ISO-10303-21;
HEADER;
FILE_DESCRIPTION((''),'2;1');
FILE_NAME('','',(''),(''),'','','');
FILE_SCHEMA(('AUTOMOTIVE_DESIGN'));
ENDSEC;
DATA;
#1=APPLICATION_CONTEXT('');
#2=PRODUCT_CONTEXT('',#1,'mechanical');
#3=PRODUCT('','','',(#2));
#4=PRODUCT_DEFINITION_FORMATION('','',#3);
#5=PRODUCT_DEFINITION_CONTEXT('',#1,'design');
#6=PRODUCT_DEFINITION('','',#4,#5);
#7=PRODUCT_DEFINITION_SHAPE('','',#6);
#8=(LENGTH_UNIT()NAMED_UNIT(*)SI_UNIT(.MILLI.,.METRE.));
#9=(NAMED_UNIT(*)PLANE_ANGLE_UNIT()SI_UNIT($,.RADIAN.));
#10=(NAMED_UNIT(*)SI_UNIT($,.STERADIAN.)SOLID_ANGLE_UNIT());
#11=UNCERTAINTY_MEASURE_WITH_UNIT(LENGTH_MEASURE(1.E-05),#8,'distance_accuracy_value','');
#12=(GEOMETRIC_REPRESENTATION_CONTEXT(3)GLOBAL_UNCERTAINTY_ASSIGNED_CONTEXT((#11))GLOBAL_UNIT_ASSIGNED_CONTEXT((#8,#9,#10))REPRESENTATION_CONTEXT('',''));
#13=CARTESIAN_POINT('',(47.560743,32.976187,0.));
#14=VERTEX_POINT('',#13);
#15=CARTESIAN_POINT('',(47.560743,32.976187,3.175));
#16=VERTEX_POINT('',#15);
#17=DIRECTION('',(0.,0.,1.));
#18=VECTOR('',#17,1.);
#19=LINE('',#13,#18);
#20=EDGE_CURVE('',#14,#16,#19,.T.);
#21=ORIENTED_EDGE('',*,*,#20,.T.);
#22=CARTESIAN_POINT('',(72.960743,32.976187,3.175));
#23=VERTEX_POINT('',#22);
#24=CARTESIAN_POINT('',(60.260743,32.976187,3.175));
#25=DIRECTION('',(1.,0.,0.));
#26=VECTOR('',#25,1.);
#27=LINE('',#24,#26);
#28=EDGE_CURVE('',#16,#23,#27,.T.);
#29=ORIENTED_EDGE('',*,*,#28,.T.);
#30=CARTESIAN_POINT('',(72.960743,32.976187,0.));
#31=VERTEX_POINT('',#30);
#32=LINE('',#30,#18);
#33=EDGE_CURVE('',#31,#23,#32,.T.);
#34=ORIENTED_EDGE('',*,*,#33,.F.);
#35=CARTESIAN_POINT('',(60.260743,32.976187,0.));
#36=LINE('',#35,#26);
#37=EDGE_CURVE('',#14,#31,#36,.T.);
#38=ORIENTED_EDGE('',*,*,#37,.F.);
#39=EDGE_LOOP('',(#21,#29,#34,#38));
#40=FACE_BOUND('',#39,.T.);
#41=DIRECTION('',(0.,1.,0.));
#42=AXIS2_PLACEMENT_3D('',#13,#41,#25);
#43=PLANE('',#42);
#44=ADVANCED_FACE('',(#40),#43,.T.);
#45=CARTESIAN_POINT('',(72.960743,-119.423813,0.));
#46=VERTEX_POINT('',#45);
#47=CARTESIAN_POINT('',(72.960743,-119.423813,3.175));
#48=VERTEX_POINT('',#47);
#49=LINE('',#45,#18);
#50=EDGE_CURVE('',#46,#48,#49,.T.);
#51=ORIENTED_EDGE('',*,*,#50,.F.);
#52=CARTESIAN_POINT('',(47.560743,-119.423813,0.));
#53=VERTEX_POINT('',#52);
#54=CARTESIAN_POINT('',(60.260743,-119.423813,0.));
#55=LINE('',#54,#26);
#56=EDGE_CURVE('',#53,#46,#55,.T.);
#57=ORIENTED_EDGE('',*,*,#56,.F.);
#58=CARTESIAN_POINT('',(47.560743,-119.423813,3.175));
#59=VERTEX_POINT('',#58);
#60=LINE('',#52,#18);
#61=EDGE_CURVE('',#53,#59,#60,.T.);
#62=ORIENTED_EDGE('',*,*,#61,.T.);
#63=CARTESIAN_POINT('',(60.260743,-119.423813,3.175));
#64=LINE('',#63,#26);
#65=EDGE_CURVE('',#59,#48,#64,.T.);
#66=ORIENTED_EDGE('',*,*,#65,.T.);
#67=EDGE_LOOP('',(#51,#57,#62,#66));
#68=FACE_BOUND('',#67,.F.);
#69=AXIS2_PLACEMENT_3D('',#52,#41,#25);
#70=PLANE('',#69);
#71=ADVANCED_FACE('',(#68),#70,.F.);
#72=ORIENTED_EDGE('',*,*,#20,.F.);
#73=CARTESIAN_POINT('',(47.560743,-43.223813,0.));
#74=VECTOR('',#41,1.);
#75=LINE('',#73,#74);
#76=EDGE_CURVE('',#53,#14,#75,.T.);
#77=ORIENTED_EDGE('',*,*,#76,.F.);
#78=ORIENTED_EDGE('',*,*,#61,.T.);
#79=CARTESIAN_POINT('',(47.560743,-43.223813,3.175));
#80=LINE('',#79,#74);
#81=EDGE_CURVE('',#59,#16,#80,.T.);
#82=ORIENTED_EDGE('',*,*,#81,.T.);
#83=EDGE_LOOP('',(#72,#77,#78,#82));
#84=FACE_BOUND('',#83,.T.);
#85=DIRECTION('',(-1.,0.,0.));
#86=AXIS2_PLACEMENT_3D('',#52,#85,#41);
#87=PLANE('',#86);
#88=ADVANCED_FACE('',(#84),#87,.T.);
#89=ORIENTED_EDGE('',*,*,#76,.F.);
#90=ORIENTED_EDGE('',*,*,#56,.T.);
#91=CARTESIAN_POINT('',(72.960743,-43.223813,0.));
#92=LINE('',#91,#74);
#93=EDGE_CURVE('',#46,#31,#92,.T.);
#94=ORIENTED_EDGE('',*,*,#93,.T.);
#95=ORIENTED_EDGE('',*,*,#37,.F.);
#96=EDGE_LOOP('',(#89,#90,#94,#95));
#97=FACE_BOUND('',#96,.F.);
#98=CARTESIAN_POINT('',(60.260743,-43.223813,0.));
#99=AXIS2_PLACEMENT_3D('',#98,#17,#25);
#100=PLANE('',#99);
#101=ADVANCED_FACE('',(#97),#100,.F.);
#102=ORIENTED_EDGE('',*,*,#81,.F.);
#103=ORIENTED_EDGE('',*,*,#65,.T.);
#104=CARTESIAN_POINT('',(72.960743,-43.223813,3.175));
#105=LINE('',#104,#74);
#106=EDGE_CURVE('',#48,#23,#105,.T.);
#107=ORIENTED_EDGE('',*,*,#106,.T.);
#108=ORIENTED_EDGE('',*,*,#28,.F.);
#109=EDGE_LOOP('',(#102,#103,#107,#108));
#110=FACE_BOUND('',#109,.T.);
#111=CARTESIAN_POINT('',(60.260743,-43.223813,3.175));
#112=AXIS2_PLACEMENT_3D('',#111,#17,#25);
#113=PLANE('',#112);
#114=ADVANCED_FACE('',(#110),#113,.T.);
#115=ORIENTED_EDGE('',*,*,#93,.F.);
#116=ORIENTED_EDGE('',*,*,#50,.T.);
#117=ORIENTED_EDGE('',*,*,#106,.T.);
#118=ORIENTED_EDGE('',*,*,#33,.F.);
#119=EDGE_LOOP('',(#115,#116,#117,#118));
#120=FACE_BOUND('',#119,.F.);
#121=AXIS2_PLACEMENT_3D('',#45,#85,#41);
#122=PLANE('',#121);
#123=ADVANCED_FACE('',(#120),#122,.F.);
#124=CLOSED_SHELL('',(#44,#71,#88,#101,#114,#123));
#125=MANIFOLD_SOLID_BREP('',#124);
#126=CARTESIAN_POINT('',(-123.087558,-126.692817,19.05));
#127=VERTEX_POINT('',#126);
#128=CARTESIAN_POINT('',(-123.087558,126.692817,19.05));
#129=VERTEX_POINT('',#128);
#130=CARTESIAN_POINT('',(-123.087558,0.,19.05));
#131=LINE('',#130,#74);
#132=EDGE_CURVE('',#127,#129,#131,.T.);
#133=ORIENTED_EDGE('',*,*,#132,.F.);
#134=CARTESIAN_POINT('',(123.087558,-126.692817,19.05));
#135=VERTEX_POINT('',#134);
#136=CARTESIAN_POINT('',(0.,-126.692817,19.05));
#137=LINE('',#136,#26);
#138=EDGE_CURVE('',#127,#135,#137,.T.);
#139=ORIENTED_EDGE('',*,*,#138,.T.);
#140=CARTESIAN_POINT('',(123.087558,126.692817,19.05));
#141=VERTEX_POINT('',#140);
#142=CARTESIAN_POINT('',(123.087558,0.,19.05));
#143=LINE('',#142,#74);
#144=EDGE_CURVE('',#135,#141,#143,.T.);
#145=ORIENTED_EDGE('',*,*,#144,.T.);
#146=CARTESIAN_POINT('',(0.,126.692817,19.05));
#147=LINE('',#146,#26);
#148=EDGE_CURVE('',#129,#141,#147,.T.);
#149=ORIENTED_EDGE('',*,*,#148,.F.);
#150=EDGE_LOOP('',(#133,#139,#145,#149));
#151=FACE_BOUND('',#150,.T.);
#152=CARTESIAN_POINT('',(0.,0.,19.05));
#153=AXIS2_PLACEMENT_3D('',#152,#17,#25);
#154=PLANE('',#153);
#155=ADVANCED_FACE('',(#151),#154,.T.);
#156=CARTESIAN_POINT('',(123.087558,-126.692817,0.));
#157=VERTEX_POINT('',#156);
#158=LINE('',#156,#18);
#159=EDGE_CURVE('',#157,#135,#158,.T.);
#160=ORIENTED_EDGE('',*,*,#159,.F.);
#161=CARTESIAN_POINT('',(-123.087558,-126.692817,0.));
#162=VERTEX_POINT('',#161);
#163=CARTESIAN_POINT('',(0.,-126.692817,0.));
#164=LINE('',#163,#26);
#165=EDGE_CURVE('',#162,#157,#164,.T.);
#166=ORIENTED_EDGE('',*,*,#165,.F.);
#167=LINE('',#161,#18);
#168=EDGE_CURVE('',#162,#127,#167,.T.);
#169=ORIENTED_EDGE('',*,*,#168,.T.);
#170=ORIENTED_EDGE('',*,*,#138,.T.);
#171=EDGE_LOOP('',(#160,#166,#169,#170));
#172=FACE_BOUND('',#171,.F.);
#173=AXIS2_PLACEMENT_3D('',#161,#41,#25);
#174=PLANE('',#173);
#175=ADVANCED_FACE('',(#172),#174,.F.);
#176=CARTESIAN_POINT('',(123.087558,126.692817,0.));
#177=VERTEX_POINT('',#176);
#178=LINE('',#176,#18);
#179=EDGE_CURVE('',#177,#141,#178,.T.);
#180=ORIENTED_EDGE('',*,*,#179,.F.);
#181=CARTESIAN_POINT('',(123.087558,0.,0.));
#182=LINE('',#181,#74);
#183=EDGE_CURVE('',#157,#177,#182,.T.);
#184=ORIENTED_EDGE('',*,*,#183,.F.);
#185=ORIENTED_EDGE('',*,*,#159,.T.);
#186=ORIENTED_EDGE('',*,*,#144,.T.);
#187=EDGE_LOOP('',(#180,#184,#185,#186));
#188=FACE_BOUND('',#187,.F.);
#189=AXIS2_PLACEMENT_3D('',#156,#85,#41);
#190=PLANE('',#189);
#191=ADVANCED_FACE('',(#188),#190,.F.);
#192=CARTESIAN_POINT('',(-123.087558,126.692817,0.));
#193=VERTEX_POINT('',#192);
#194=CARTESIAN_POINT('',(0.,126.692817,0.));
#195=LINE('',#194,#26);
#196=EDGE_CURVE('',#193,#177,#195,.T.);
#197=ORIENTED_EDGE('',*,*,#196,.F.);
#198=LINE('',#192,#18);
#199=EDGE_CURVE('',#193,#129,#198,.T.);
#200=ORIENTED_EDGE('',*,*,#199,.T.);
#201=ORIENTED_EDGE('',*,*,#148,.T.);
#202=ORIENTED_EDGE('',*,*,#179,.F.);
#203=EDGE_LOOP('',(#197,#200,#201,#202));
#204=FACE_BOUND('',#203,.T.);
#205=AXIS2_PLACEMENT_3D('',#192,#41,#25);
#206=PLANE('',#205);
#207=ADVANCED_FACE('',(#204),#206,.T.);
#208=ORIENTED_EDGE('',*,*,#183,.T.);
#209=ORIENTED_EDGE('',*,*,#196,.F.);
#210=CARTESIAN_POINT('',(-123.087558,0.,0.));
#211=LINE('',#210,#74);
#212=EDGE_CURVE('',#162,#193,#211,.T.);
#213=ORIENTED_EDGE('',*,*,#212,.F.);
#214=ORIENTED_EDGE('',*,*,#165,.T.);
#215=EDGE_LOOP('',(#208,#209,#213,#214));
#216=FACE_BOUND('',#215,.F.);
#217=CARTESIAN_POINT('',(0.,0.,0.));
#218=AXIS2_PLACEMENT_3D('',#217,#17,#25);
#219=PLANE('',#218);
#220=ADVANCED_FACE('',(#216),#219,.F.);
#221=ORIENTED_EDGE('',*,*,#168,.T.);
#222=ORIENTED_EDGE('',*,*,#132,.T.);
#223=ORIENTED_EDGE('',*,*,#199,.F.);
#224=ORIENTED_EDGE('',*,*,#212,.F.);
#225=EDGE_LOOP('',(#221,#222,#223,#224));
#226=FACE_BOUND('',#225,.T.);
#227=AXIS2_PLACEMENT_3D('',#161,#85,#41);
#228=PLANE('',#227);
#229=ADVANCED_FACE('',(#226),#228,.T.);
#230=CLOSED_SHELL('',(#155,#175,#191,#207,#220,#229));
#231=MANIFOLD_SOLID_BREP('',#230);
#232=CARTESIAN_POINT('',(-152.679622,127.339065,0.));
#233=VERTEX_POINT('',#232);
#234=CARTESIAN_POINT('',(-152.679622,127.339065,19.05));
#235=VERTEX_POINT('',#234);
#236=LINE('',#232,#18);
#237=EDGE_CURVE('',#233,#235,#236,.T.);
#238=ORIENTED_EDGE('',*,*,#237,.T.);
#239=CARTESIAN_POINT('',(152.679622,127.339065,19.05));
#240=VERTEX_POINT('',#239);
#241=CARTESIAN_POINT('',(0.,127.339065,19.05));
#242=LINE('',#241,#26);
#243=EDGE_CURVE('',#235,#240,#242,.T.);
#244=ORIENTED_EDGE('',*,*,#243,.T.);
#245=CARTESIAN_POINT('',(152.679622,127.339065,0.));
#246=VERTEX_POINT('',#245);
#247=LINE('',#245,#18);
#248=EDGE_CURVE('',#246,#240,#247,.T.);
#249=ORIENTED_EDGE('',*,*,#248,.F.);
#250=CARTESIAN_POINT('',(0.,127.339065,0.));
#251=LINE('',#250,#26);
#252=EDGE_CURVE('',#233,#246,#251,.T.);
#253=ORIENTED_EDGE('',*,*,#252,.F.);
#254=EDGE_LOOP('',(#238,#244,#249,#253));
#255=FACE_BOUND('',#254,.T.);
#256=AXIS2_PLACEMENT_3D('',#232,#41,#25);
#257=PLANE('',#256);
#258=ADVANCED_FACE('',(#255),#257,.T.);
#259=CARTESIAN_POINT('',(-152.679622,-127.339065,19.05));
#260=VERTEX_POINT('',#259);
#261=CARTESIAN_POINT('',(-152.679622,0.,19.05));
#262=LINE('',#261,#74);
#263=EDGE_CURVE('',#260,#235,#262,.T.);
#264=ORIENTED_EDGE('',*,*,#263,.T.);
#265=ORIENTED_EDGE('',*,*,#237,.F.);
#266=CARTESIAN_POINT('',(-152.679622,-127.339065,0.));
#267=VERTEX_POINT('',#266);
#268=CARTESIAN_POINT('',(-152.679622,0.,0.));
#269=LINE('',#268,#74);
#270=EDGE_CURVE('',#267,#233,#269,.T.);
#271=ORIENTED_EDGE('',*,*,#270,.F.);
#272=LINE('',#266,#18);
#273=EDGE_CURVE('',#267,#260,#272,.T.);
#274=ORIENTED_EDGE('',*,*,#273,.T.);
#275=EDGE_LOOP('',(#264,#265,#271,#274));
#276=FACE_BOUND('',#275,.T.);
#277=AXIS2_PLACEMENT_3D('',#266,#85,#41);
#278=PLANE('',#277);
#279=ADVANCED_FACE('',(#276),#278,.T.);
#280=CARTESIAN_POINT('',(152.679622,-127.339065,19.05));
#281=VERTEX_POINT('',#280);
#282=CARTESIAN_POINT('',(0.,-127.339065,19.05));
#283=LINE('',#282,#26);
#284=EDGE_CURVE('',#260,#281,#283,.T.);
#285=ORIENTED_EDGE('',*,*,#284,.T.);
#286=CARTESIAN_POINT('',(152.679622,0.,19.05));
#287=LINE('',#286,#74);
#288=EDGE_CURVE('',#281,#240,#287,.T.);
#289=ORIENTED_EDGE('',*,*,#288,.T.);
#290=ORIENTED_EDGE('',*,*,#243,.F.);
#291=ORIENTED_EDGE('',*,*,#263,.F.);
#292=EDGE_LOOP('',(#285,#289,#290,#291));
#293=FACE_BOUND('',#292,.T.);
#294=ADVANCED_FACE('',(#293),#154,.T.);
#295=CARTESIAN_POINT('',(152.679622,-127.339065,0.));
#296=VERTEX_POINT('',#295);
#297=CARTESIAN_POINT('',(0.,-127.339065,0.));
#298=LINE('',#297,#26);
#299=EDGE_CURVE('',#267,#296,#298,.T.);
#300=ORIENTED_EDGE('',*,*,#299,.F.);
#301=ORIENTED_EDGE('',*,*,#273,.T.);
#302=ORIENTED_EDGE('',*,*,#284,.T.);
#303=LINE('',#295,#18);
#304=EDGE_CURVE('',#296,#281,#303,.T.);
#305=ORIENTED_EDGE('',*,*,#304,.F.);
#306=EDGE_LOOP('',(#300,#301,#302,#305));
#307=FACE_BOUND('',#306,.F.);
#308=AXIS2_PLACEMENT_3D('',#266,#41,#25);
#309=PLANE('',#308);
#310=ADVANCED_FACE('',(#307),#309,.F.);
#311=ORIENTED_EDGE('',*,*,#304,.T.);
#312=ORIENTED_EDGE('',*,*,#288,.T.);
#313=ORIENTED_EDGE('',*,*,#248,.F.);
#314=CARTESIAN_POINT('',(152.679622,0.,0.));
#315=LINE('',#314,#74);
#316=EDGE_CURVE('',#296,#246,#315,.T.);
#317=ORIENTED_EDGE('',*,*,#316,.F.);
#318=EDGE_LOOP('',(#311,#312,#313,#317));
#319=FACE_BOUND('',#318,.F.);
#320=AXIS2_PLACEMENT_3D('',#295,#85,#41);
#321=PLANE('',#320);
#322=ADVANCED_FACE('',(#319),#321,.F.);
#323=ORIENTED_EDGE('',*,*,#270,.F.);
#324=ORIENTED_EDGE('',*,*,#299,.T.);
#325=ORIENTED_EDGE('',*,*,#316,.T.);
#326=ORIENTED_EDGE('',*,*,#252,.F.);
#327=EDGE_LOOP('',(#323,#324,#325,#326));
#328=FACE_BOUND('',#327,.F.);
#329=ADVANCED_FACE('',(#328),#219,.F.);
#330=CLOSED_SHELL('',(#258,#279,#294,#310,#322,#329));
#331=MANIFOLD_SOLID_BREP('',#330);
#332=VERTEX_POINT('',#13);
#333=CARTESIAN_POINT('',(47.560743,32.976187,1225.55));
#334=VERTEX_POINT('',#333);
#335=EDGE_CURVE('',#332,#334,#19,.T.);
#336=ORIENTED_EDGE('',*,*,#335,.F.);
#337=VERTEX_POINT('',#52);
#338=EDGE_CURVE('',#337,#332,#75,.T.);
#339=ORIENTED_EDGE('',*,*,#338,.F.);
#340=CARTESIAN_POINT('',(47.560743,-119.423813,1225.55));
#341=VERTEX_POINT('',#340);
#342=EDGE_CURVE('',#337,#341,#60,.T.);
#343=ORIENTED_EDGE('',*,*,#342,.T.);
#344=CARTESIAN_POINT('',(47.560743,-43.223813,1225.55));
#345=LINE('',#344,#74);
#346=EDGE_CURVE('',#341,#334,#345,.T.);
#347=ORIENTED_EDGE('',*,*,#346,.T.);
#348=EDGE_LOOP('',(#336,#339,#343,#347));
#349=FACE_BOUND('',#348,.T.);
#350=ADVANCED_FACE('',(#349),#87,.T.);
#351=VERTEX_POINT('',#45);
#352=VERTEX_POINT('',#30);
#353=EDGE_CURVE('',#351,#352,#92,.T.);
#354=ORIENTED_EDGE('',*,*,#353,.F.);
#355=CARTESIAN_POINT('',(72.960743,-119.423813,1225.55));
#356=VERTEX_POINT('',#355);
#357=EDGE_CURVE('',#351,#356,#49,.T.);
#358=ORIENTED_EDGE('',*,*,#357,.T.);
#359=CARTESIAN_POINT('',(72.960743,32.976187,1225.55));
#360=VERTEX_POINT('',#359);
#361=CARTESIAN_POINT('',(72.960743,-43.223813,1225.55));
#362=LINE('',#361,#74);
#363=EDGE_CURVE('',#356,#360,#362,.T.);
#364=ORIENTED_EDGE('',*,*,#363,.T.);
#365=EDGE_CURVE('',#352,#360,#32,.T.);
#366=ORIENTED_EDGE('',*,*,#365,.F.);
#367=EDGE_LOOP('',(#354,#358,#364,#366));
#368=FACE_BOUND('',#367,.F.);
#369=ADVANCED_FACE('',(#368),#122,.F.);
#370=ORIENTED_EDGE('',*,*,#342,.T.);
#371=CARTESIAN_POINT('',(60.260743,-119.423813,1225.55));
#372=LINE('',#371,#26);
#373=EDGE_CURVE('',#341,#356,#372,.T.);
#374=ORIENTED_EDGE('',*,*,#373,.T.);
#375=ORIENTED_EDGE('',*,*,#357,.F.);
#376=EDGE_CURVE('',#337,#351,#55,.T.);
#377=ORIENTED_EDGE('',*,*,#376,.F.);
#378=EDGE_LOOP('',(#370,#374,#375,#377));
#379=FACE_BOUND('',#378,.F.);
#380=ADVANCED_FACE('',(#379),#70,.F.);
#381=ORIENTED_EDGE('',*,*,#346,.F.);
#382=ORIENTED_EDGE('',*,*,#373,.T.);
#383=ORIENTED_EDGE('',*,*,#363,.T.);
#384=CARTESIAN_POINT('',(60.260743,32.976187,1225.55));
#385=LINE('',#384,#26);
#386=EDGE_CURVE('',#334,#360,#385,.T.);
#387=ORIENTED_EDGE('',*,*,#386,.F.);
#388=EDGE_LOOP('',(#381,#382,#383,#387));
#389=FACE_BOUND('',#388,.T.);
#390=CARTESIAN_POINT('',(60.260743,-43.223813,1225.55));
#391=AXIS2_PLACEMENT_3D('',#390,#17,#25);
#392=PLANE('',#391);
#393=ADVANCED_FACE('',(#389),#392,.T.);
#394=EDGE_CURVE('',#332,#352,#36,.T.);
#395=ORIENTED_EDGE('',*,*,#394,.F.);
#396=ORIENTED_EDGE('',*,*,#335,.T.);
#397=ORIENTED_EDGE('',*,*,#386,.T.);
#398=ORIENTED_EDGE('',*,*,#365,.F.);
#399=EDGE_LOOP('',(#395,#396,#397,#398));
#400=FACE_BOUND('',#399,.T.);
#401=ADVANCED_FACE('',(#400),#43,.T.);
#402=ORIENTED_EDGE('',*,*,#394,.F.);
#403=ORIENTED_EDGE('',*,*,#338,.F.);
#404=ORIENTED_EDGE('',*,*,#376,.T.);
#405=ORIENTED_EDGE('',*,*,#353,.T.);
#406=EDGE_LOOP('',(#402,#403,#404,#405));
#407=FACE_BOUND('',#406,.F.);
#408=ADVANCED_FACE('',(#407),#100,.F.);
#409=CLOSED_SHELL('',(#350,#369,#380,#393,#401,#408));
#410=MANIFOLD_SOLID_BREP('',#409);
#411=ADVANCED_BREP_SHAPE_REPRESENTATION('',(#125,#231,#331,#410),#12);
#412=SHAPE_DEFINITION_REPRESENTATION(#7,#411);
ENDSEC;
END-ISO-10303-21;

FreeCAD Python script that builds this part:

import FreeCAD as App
import Part
import Sketcher
from FreeCAD import Vector
Q = App.Units.Quantity


def add_polygon(sketch, points):
    """Adds a closed chain of lines whose ends are joined by coincident constraints."""
    first, n = sketch.GeometryCount, len(points)
    for a, b in zip(points, points[1:] + points[:1]):
        sketch.addGeometry(Part.LineSegment(App.Vector(*a, 0), App.Vector(*b, 0)), False)
    for i in range(n):
        sketch.addConstraint(Sketcher.Constraint("Coincident", first + i, 2, first + (i + 1) % n, 1))

doc = App.newDocument("Part")
body = doc.addObject("PartDesign::Body", "Body")

# Sketch on XY plane
sketch1 = doc.addObject("Sketcher::SketchObject", "Sketch")
body.addObject(sketch1)
sketch1.AttachmentSupport = (doc.XY_Plane, [""])
sketch1.MapMode = "FlatFace"
add_polygon(sketch1, [(-153, 127), (-153, -127), (153, -127), (153, 127)])  # lines 0-3
sketch1.addConstraint(Sketcher.Constraint("Vertical", 0))
sketch1.addConstraint(Sketcher.Constraint("Horizontal", 1))
sketch1.addConstraint(Sketcher.Constraint("Vertical", 2))
sketch1.addConstraint(Sketcher.Constraint("Horizontal", 3))
sketch1.addConstraint(Sketcher.Constraint("Symmetric", 0, 2, 2, 2, -1, 1))
sketch1.addConstraint(Sketcher.Constraint("DistanceY", 0, 2, 0, 1, Q("254.67813 mm")))
sketch1.addConstraint(Sketcher.Constraint("DistanceX", 1, 1, 1, 2, Q("305.359244 mm")))
pad1 = doc.addObject("PartDesign::Pad", "Pad")
body.addObject(pad1)
pad1.Profile = sketch1
pad1.Length = Q("0.75 in")
body2 = doc.addObject("PartDesign::Body", "Body001")

# Sketch on XY plane
sketch2 = doc.addObject("Sketcher::SketchObject", "Sketch001")
body2.addObject(sketch2)
sketch2.AttachmentSupport = (doc.getObject("XY_Plane001"), [""])
sketch2.MapMode = "FlatFace"
add_polygon(sketch2, [(48, 33), (48, -119), (73, -119), (73, 33)])  # lines 0-3
sketch2.addConstraint(Sketcher.Constraint("Vertical", 0))
sketch2.addConstraint(Sketcher.Constraint("Horizontal", 1))
sketch2.addConstraint(Sketcher.Constraint("Vertical", 2))
sketch2.addConstraint(Sketcher.Constraint("Horizontal", 3))
sketch2.addConstraint(Sketcher.Constraint("DistanceX", 1, 1, 1, 2, Q("1 in")))
sketch2.addConstraint(Sketcher.Constraint("DistanceY", 0, 2, 0, 1, Q("6 in")))
sketch2.addConstraint(Sketcher.Constraint("DistanceX", -1, 1, 0, 2, Q("47.560743 mm")))
sketch2.addConstraint(Sketcher.Constraint("DistanceY", 0, 2, -1, 1, Q("119.423813 mm")))
pad2 = doc.addObject("PartDesign::Pad", "Pad001")
body2.addObject(pad2)
pad2.Profile = sketch2
pad2.Length = Q("0.125 in")
body3 = doc.addObject("PartDesign::Body", "Body002")

# Sketch on XY plane
sketch3 = doc.addObject("Sketcher::SketchObject", "Sketch002")
body3.addObject(sketch3)
sketch3.AttachmentSupport = (doc.getObject("XY_Plane002"), [""])
sketch3.MapMode = "FlatFace"
add_polygon(sketch3, [(48, 33), (48, -119), (73, -119), (73, 33)])  # lines 0-3
sketch3.addConstraint(Sketcher.Constraint("Vertical", 0))
sketch3.addConstraint(Sketcher.Constraint("Horizontal", 1))
sketch3.addConstraint(Sketcher.Constraint("Vertical", 2))
sketch3.addConstraint(Sketcher.Constraint("Horizontal", 3))
sketch3.addConstraint(Sketcher.Constraint("DistanceX", 1, 1, 1, 2, Q("1 in")))
sketch3.addConstraint(Sketcher.Constraint("DistanceY", 0, 2, 0, 1, Q("6 in")))
sketch3.addConstraint(Sketcher.Constraint("DistanceX", -1, 1, 0, 2, Q("47.560743 mm")))
sketch3.addConstraint(Sketcher.Constraint("DistanceY", 0, 2, -1, 1, Q("119.423813 mm")))
pad3 = doc.addObject("PartDesign::Pad", "Pad002")
body3.addObject(pad3)
pad3.Profile = sketch3
pad3.Length = Q("48.25 in")
body4 = doc.addObject("PartDesign::Body", "Body003")

# Sketch on XY plane
sketch4 = doc.addObject("Sketcher::SketchObject", "Sketch003")
body4.addObject(sketch4)
sketch4.AttachmentSupport = (doc.getObject("XY_Plane003"), [""])
sketch4.MapMode = "FlatFace"
add_polygon(sketch4, [(-123, 127), (-123, -127), (123, -127), (123, 127)])  # lines 0-3
sketch4.addConstraint(Sketcher.Constraint("Vertical", 0))
sketch4.addConstraint(Sketcher.Constraint("Horizontal", 1))
sketch4.addConstraint(Sketcher.Constraint("Vertical", 2))
sketch4.addConstraint(Sketcher.Constraint("Horizontal", 3))
sketch4.addConstraint(Sketcher.Constraint("Symmetric", 0, 2, 2, 2, -1, 1))
sketch4.addConstraint(Sketcher.Constraint("DistanceX", 1, 1, 1, 2, Q("246.175116 mm")))
sketch4.addConstraint(Sketcher.Constraint("DistanceY", 0, 2, 0, 1, Q("253.385634 mm")))
pad4 = doc.addObject("PartDesign::Pad", "Pad003")
body4.addObject(pad4)
pad4.Profile = sketch4
pad4.Length = Q("0.75 in")

doc.recompute()
